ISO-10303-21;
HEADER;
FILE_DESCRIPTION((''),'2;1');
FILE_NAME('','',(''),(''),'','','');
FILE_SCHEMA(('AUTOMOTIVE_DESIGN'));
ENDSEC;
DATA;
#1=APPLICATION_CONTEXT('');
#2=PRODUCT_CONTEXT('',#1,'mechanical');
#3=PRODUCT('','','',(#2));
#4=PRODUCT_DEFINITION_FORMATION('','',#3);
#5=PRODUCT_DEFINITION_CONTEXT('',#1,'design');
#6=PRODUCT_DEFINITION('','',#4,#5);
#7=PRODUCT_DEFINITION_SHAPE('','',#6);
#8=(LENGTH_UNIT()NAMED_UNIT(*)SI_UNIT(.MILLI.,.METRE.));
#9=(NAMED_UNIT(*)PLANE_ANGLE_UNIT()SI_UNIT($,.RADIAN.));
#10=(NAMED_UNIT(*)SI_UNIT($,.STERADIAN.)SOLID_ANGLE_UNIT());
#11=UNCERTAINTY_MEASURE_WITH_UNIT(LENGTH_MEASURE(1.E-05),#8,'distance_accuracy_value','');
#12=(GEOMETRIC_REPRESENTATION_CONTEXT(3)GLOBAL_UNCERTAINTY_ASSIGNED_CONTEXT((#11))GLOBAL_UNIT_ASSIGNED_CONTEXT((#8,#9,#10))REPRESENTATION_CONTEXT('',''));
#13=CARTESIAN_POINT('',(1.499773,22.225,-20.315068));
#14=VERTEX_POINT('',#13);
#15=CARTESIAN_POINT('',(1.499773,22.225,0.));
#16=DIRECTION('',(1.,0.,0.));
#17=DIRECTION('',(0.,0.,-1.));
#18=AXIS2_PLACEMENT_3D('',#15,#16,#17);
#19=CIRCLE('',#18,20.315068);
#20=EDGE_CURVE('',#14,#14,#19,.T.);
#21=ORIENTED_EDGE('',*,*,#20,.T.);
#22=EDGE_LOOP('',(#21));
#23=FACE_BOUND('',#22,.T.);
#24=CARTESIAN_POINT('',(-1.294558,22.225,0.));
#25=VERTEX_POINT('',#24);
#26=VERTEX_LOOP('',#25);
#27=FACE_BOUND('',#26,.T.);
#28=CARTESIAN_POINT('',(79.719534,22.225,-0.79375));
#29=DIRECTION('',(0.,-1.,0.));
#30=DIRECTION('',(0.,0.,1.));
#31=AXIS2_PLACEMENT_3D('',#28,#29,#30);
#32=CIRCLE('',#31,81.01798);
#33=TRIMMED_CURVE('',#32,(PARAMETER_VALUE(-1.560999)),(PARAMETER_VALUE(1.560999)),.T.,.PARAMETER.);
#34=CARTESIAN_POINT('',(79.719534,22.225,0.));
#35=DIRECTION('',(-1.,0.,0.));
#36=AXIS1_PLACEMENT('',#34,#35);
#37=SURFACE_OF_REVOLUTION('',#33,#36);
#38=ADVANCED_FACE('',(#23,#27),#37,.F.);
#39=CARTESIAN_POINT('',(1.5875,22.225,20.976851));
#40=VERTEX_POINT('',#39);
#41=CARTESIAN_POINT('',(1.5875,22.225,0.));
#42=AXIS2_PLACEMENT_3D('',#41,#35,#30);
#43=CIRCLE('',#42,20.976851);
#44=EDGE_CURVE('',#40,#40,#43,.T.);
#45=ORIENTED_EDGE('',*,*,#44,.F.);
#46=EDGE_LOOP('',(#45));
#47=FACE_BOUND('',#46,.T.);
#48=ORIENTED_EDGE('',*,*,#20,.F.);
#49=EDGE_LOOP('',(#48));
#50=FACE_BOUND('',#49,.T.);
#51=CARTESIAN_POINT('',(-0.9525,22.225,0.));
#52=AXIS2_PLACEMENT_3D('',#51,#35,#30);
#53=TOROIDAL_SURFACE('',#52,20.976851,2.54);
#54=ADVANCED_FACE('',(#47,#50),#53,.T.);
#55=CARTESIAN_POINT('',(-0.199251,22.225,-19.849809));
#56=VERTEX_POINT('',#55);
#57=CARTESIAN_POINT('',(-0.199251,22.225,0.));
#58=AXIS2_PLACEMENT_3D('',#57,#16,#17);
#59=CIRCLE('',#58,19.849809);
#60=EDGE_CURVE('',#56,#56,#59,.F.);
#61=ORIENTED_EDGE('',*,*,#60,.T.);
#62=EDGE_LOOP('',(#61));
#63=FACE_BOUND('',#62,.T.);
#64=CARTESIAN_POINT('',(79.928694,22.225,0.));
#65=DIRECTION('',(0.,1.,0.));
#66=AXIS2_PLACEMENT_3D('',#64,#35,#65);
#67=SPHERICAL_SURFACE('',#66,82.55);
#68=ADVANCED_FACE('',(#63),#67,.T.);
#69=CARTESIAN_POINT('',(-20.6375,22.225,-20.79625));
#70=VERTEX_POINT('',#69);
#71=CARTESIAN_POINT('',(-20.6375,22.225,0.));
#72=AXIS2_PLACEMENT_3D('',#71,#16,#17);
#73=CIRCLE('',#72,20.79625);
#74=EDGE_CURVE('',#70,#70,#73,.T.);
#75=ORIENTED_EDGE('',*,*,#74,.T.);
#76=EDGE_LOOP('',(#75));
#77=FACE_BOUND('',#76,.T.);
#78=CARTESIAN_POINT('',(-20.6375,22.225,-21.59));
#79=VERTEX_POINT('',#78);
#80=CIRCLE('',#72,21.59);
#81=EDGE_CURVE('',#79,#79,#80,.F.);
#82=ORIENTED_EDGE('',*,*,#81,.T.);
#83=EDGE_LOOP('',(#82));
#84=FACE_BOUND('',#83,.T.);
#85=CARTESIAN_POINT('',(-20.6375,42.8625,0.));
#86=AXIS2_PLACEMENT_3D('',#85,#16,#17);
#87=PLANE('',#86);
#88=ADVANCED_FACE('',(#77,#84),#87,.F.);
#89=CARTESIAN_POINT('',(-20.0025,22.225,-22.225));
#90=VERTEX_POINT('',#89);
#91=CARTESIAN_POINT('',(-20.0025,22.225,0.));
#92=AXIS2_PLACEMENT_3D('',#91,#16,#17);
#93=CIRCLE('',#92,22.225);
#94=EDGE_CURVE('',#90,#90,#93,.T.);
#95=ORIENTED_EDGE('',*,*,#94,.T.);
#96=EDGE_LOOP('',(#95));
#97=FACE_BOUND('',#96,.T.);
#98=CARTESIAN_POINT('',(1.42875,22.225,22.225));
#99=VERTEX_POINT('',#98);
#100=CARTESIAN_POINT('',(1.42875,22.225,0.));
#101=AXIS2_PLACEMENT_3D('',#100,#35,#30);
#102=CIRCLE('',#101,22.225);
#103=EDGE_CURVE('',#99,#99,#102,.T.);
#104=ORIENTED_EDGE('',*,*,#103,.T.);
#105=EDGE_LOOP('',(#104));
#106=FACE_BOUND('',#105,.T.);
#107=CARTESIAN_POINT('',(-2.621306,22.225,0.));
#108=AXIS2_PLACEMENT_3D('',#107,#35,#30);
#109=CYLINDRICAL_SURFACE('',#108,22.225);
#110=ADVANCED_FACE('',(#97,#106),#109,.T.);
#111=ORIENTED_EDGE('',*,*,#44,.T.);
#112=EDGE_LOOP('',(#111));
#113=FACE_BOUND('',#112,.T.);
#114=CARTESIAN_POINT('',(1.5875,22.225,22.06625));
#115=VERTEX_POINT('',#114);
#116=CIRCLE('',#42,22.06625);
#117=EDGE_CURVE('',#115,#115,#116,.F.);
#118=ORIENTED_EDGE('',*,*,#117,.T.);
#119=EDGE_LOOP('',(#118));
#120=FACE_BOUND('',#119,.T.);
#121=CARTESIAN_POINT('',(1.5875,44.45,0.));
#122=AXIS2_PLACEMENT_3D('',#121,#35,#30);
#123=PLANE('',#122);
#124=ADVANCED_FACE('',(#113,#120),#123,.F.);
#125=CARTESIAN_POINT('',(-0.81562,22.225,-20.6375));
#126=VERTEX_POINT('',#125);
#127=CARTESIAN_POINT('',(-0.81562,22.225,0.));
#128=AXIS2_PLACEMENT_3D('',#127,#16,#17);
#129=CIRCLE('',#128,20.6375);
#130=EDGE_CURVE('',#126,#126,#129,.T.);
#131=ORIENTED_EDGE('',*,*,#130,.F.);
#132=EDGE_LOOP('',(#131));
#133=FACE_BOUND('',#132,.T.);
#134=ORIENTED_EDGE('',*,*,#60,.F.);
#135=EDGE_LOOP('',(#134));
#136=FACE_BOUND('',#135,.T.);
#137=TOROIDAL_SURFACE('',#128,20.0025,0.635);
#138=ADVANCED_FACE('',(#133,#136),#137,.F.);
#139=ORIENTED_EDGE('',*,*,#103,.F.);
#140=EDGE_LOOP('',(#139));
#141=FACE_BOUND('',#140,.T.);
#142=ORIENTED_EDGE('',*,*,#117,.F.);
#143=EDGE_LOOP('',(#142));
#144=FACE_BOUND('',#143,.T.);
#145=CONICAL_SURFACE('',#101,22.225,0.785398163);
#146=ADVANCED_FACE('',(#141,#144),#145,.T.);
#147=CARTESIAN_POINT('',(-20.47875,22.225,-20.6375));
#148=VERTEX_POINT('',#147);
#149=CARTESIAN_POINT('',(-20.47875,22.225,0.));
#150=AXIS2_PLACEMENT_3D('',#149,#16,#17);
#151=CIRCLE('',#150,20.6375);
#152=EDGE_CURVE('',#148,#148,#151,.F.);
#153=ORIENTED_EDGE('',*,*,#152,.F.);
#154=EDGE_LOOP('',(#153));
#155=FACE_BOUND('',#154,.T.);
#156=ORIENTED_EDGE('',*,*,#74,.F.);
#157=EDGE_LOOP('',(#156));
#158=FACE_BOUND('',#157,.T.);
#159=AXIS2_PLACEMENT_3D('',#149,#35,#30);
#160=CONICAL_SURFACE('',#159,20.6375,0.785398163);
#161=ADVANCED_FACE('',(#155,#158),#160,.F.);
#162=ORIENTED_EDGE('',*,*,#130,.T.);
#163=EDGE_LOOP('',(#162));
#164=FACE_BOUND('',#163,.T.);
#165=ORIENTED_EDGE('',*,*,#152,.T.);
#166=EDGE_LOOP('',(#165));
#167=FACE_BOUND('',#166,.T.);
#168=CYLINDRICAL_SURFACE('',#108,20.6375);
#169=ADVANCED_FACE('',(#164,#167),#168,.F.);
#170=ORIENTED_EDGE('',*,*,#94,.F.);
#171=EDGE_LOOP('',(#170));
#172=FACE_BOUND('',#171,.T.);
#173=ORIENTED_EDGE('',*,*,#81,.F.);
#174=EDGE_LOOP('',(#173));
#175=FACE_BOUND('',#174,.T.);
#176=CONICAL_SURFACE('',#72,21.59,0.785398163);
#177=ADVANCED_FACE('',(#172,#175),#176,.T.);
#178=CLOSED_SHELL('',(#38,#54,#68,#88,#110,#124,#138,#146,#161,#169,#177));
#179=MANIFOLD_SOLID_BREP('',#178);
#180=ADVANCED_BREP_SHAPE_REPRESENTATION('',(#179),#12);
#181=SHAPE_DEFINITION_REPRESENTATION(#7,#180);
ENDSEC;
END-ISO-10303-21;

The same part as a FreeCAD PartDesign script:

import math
import FreeCAD as App
import Part
import Sketcher

V = App.Vector
Q = App.Units.Quantity


def edges_at(feature, points):
    """Names of the edges that pass closest to the given points."""
    edges = feature.Shape.Edges
    near = lambda p: min(range(len(edges)), key=lambda i: edges[i].distToShape(Part.Vertex(*p))[0])
    return sorted({f"Edge{near(p) + 1}" for p in points})

doc = App.newDocument("Part")
body = doc.addObject("PartDesign::Body", "Body")

# Sketch on XY plane
sketch1 = body.newObject("Sketcher::SketchObject", "Sketch")
sketch1.AttachmentSupport = (doc.getObject("XY_Plane"), [""])
sketch1.MapMode = "FlatFace"
sketch1.addGeometry([
    Part.LineSegment(V(-2.6, 22.2, 0), V(-1.3, 22.2, 0)),  # 0
    Part.ArcOfCircle(Part.Circle(V(79.7, 21.4, 0), V(0, 0, 1), 81), math.radians(164.66), math.radians(179.44)),  # 1
    Part.LineSegment(V(1.6, 42.9, 0), V(1.6, 44.5, 0)),  # 2
    Part.LineSegment(V(1.6, 44.5, 0), V(-20.6, 44.5, 0)),  # 3
    Part.LineSegment(V(-20.6, 44.5, 0), V(-20.6, 42.9, 0)),  # 4
    Part.LineSegment(V(-20.6, 42.9, 0), V(0, 42.9, 0)),  # 5
    Part.ArcOfCircle(Part.Circle(V(79.9, 22.2, 0), V(0, 0, 1), 82.6), math.radians(165.52), math.radians(180)),  # 6
], False)
sketch1.addGeometry(Part.LineSegment(V(-20.6, 22.2, 0), V(79.9, 22.2, 0)), True)  # axis
sketch1.addConstraint([
    Sketcher.Constraint("Coincident", 0, 2, 1, 2),
    Sketcher.Constraint("Coincident", 1, 1, 2, 1),
    Sketcher.Constraint("Coincident", 2, 2, 3, 1),
    Sketcher.Constraint("Coincident", 3, 2, 4, 1),
    Sketcher.Constraint("Coincident", 4, 2, 5, 1),
    Sketcher.Constraint("Coincident", 5, 2, 6, 1),
    Sketcher.Constraint("Coincident", 6, 2, 0, 1),
    Sketcher.Constraint("Horizontal", 0),
    Sketcher.Constraint("Vertical", 2),
    Sketcher.Constraint("Horizontal", 3),
    Sketcher.Constraint("Vertical", 4),
    Sketcher.Constraint("Horizontal", 5),
    Sketcher.Constraint("Horizontal", 7),
    Sketcher.Constraint("Coincident", 7, 2, 6, 3),
    Sketcher.Constraint("PointOnObject", 5, 2, -2),
    Sketcher.Constraint("Horizontal", 6, 3, 0, 2),
    Sketcher.Constraint("Horizontal", 1, 1, 4, 2),
    Sketcher.Constraint("Vertical", 4, 2, 7, 1),
    Sketcher.Constraint("Radius", 6, Q("3.25 in")),
    Sketcher.Constraint("DistanceX", 3, 2, 3, 1, Q("0.875 in")),
    Sketcher.Constraint("DistanceX", 5, 1, 5, 2, Q("0.8125 in")),
    Sketcher.Constraint("DistanceY", 2, 1, 2, 2, Q("0.0625 in")),
    Sketcher.Constraint("DistanceY", -1, 1, 2, 2, Q("1.75 in")),
    Sketcher.Constraint("DistanceY", -1, 1, 1, 3, Q("0.84375 in")),
    Sketcher.Constraint("DistanceY", -1, 1, 6, 3, Q("0.875 in")),
    Sketcher.Constraint("Radius", 1, Q("81.01798 mm")),
])
revolution = body.newObject("PartDesign::Revolution", "Revolution")
revolution.Profile = sketch1
revolution.ReferenceAxis = (sketch1, ["Axis0"])
revolution.Angle = 360
doc.recompute()

chamfer = body.newObject("PartDesign::Chamfer", "Chamfer")
chamfer.Base = (revolution, edges_at(revolution, [(-20.637, 0, 0)]))
chamfer.Size = Q("0.025 in")
doc.recompute()

chamfer2 = body.newObject("PartDesign::Chamfer", "Chamfer001")
chamfer2.Base = (chamfer, edges_at(chamfer, [(1.587, 0, 0), (-20.637, 1.587, 0)]))
chamfer2.Size = 0.15875
doc.recompute()

fillet = body.newObject("PartDesign::Fillet", "Fillet")
fillet.Base = (chamfer2, edges_at(chamfer2, [(1.587, 1.587, 0)]))
fillet.Radius = Q("0.1 in")
doc.recompute()

fillet2 = body.newObject("PartDesign::Fillet", "Fillet001")
fillet2.Base = (fillet, edges_at(fillet, [(0, 1.587, 0)]))
fillet2.Radius = Q("0.025 in")

doc.recompute()
